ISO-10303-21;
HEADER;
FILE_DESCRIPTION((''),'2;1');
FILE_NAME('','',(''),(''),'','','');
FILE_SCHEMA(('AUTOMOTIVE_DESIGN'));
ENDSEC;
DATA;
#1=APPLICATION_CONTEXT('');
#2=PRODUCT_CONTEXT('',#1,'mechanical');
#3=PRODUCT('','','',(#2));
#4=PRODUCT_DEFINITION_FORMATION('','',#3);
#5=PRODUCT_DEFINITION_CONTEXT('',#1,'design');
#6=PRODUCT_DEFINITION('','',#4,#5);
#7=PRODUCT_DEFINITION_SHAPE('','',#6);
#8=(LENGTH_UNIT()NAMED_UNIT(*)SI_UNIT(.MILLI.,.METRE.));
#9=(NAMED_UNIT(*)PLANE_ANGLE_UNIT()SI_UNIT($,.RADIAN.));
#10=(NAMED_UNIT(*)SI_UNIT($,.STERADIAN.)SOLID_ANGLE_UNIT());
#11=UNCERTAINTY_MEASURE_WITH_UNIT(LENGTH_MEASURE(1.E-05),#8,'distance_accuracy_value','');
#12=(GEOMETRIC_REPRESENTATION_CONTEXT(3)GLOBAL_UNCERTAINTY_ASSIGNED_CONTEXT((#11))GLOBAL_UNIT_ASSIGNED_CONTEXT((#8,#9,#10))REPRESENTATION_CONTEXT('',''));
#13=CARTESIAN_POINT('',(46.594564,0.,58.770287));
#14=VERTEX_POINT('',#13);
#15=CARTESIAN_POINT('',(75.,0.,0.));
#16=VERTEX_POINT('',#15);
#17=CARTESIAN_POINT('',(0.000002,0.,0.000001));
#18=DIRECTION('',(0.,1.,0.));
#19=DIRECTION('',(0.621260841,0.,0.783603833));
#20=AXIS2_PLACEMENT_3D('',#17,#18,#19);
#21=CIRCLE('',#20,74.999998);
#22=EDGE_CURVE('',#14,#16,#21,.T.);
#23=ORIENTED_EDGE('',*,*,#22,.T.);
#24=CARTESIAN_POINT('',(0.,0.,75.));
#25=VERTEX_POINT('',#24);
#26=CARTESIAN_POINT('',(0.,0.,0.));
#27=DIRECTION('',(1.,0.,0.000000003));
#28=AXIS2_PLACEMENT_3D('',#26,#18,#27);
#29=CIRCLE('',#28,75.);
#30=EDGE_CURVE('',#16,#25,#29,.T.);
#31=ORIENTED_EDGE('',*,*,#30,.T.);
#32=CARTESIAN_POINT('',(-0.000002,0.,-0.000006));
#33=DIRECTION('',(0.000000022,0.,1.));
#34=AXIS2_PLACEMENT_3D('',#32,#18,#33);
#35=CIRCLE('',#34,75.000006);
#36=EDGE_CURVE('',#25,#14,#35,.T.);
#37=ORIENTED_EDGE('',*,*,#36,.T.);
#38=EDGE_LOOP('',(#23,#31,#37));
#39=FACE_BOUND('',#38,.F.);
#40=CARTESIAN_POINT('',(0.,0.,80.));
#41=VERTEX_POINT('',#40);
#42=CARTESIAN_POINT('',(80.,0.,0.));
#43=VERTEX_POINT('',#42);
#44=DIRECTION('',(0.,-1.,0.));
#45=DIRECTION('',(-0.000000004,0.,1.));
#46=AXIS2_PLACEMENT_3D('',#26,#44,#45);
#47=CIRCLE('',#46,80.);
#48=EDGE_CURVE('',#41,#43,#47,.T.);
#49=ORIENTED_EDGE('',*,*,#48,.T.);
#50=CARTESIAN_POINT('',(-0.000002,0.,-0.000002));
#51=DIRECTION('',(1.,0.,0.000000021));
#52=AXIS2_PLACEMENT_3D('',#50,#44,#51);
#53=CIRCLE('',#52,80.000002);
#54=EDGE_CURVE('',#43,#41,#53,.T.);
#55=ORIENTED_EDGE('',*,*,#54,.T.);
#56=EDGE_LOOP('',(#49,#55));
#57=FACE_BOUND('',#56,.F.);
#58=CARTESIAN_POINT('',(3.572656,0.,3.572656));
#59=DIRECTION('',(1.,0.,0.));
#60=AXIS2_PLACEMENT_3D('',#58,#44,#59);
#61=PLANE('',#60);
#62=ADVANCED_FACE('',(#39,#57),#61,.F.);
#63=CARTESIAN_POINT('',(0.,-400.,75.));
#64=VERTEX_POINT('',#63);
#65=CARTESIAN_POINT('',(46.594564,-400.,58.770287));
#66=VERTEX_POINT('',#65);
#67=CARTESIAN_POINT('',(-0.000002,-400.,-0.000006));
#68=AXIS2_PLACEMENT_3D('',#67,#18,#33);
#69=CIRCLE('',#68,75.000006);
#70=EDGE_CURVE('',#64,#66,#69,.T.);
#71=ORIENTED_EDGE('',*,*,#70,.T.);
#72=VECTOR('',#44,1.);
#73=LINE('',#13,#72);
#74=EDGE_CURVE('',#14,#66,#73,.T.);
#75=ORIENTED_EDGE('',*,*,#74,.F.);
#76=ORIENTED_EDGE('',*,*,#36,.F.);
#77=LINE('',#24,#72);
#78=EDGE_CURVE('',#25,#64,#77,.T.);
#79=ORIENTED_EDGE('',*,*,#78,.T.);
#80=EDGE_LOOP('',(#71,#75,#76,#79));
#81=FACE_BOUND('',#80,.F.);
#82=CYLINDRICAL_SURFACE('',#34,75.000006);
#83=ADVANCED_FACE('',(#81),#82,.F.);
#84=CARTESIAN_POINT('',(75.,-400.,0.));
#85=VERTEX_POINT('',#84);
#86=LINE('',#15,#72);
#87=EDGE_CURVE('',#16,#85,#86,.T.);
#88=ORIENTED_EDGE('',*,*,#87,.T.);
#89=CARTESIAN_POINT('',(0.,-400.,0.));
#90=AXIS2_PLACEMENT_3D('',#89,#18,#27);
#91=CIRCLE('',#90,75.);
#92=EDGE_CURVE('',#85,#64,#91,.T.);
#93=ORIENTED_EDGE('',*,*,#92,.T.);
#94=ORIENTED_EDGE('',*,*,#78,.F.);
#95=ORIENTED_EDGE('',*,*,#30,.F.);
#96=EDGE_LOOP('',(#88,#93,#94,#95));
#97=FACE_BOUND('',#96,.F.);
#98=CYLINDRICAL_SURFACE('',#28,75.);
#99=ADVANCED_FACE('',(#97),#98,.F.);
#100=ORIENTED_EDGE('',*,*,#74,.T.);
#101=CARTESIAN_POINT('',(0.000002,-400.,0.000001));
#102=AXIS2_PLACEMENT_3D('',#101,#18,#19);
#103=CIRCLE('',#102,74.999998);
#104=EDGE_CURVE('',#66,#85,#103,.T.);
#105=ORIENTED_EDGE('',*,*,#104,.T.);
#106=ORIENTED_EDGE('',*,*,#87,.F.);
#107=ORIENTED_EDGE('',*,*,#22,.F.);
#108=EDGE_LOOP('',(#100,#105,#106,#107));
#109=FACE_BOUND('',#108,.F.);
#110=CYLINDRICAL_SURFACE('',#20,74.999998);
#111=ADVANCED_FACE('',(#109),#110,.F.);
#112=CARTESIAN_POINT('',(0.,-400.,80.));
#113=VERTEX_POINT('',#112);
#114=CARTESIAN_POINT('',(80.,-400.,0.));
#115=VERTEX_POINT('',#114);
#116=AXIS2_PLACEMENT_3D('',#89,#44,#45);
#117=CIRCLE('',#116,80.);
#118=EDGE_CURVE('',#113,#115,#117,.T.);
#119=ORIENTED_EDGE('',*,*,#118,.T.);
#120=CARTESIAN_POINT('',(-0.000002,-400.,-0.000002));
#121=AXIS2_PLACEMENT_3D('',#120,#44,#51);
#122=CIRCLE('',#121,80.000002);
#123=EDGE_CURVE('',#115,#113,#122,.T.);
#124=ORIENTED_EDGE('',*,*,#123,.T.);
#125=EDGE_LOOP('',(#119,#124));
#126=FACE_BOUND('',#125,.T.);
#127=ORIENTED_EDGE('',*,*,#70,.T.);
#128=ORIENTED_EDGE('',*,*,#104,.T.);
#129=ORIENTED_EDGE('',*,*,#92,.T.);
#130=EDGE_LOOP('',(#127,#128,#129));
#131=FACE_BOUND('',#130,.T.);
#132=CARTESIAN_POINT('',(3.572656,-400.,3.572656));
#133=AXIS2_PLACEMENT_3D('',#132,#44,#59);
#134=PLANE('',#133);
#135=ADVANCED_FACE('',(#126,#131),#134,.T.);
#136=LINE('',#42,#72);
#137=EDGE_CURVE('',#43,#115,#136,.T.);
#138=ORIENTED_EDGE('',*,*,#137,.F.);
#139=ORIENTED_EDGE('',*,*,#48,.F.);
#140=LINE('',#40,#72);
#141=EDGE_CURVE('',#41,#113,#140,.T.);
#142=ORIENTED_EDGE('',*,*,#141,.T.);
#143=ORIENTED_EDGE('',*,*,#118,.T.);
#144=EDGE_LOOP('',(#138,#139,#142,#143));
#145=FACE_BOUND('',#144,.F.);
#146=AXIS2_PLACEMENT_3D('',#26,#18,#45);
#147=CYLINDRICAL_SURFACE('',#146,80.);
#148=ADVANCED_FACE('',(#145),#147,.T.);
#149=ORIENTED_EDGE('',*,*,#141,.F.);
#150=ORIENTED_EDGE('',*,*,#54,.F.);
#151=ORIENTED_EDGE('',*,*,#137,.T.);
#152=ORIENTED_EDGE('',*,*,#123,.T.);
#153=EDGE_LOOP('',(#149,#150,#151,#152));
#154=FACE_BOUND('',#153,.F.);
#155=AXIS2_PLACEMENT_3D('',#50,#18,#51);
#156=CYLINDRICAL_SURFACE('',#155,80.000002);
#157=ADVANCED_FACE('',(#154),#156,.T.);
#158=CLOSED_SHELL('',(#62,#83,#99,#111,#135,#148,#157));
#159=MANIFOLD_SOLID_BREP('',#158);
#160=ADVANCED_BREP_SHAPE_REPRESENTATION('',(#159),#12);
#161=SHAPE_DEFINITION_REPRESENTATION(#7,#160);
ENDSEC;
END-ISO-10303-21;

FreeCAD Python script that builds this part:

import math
import FreeCAD as App
import Part
import Sketcher

V = App.Vector
Q = App.Units.Quantity

doc = App.newDocument("Part")
body = doc.addObject("PartDesign::Body", "Body")

# Sketch on XZ plane
sketch1 = body.newObject("Sketcher::SketchObject", "Sketch")
sketch1.AttachmentSupport = (doc.getObject("XZ_Plane"), [""])
sketch1.MapMode = "FlatFace"
sketch1.addGeometry(Part.ArcOfCircle(Part.Circle(V(0, 0, 0), V(0, 0, 1), 80), math.radians(90), math.radians(360)), False)
sketch1.addGeometry(Part.ArcOfCircle(Part.Circle(V(0, 0, 0), V(0, 0, 1), 80), math.radians(0), math.radians(90)), False)
sketch1.addGeometry(Part.ArcOfCircle(Part.Circle(V(0, 0, 0), V(0, 0, 1), 75), math.radians(0), math.radians(52)), False)
sketch1.addGeometry(Part.ArcOfCircle(Part.Circle(V(0, 0, 0), V(0, 0, 1), 75), math.radians(90), math.radians(360)), False)
sketch1.addGeometry(Part.ArcOfCircle(Part.Circle(V(0, 0, 0), V(0, 0, 1), 75), math.radians(52), math.radians(90)), False)
sketch1.addConstraint(Sketcher.Constraint("Tangent", 0, 1, 1, 2))
sketch1.addConstraint(Sketcher.Constraint("Coincident", 1, 1, 0, 2))
sketch1.addConstraint(Sketcher.Constraint("Tangent", 2, 1, 3, 2))
sketch1.addConstraint(Sketcher.Constraint("Tangent", 3, 1, 4, 2))
sketch1.addConstraint(Sketcher.Constraint("Tangent", 4, 1, 2, 2))
sketch1.addConstraint(Sketcher.Constraint("Coincident", 0, 3, -1, 1))
sketch1.addConstraint(Sketcher.Constraint("Coincident", 2, 3, -1, 1))
sketch1.addConstraint(Sketcher.Constraint("PointOnObject", 0, 1, -2))
sketch1.addConstraint(Sketcher.Constraint("PointOnObject", 1, 1, -1))
sketch1.addConstraint(Sketcher.Constraint("PointOnObject", 2, 1, -1))
sketch1.addConstraint(Sketcher.Constraint("PointOnObject", 3, 1, -2))
sketch1.addConstraint(Sketcher.Constraint("Radius", 0, Q("80 mm")))
sketch1.addConstraint(Sketcher.Constraint("Radius", 3, Q("75 mm")))
sketch1.addConstraint(Sketcher.Constraint("DistanceX", 2, 3, 4, 1, Q("46.594562 mm")))
pad1 = body.newObject("PartDesign::Pad", "Pad")
pad1.Profile = sketch1
pad1.Length = 400

doc.recompute()
